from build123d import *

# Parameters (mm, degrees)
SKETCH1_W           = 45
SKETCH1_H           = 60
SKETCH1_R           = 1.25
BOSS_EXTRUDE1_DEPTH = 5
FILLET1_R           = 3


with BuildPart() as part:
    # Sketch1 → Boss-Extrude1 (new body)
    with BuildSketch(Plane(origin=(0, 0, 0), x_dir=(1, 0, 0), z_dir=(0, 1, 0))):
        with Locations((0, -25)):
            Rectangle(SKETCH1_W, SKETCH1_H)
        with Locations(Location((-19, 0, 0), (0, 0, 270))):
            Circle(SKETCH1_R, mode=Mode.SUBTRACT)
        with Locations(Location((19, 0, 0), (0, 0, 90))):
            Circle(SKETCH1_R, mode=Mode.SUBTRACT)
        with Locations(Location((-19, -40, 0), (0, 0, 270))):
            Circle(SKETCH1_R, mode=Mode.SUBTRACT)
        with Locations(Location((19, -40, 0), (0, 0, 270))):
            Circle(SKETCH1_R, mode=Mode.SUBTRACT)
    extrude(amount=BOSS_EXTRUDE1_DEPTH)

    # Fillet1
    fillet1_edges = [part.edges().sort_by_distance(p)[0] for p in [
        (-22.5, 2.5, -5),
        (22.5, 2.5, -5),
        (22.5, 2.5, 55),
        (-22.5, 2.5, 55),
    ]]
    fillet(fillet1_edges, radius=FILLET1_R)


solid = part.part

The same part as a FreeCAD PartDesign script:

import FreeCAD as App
import Part
import Sketcher


def edges_at(feature, points):
    """Names of the edges that pass closest to the given points."""
    edges = feature.Shape.Edges
    near = lambda p: min(range(len(edges)), key=lambda i: edges[i].distToShape(Part.Vertex(*p))[0])
    return sorted({f"Edge{near(p) + 1}" for p in points})

doc = App.newDocument("Part")
body = doc.addObject("PartDesign::Body", "Body")

sketch1 = doc.addObject("Sketcher::SketchObject", "Sketch")
body.addObject(sketch1)
sketch1.AttachmentSupport = (doc.XZ_Plane, [""])
sketch1.MapMode = "FlatFace"
sketch1.addGeometry([
    Part.LineSegment(App.Vector(-22.5, -5, 0), App.Vector(-22.5, 55, 0)),
    Part.LineSegment(App.Vector(-22.5, 55, 0), App.Vector(22.5, 55, 0)),
    Part.LineSegment(App.Vector(22.5, 55, 0), App.Vector(22.5, -5, 0)),
    Part.LineSegment(App.Vector(22.5, -5, 0), App.Vector(-22.5, -5, 0)),
    Part.Circle(App.Vector(-19, 40, 0), App.Vector(0, 0, 1), 1.2),
    Part.Circle(App.Vector(19, 40, 0), App.Vector(0, 0, 1), 1.2),
    Part.Circle(App.Vector(-19, 0, 0), App.Vector(0, 0, 1), 1.2),
    Part.Circle(App.Vector(19, 0, 0), App.Vector(0, 0, 1), 1.2),
], False)
sketch1.addConstraint([
    Sketcher.Constraint("Coincident", 0, 2, 1, 1),
    Sketcher.Constraint("Coincident", 1, 2, 2, 1),
    Sketcher.Constraint("Coincident", 2, 2, 3, 1),
    Sketcher.Constraint("Coincident", 3, 2, 0, 1),
    Sketcher.Constraint("Vertical", 0),
    Sketcher.Constraint("Horizontal", 1),
    Sketcher.Constraint("Vertical", 2),
    Sketcher.Constraint("Horizontal", 3),
    Sketcher.Constraint("Equal", 4, 5),
    Sketcher.Constraint("Equal", 5, 6),
    Sketcher.Constraint("Equal", 6, 7),
    Sketcher.Constraint("Symmetric", 6, 3, 7, 3, -1, 1),
    Sketcher.Constraint("Symmetric", 4, 3, 5, 3, -2),
    Sketcher.Constraint("PointOnObject", 6, 3, -1),
    Sketcher.Constraint("Vertical", 4, 3, 6, 3),
    Sketcher.Constraint("Diameter", 4, 2.5),
    Sketcher.Constraint("DistanceX", 1, 1, 1, 2, 45.0),
    Sketcher.Constraint("DistanceY", 0, 1, 0, 2, 60.0),
    Sketcher.Constraint("DistanceX", 4, 3, -1, 1, 19.0),
    Sketcher.Constraint("DistanceY", -1, 1, 4, 3, 40.0),
    Sketcher.Constraint("DistanceY", -1, 1, 0, 2, 55.0),
    Sketcher.Constraint("DistanceX", 0, 2, -1, 1, 22.5),
])
pad1 = doc.addObject("PartDesign::Pad", "Pad")
body.addObject(pad1)
pad1.Profile = sketch1
pad1.Length = 5
pad1.Reversed = True
doc.recompute()

fillet = doc.addObject("PartDesign::Fillet", "Fillet")
body.addObject(fillet)
fillet.Base = (pad1, edges_at(pad1, [
    (-22.5, 2.5, -5),
    (22.5, 2.5, -5),
    (22.5, 2.5, 55),
    (-22.5, 2.5, 55),
]))
fillet.Radius = 3

doc.recompute()
